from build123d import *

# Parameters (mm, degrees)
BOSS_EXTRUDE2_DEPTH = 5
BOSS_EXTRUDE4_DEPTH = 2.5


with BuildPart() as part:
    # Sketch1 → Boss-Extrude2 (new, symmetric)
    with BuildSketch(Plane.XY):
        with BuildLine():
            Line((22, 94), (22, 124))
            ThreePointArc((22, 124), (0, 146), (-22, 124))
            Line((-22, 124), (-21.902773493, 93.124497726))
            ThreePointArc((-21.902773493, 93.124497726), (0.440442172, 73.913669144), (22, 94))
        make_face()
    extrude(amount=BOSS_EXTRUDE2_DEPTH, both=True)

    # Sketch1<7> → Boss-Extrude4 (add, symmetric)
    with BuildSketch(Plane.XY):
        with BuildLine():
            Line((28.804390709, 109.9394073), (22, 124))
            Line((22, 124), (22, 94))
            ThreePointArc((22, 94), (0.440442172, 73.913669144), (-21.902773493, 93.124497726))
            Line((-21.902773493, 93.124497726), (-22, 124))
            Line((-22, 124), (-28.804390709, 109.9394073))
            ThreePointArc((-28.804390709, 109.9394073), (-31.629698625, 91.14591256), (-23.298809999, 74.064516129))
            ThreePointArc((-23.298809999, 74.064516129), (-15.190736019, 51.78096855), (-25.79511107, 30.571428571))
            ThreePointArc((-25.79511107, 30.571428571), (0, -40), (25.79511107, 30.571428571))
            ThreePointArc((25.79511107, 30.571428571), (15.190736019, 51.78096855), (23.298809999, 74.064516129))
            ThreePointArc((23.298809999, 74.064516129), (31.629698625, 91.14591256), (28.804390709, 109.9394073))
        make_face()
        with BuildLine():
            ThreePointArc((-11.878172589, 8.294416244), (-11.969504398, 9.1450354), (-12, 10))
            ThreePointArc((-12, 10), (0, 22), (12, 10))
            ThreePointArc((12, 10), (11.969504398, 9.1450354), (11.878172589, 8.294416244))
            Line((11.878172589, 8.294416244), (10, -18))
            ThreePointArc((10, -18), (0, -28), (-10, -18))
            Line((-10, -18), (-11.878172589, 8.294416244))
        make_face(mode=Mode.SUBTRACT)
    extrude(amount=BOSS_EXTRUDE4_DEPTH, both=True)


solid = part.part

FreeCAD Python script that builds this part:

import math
import FreeCAD as App
import Part
import Sketcher

V = App.Vector
Q = App.Units.Quantity

doc = App.newDocument("Part")
params = doc.addObject("Spreadsheet::Sheet", "Params")
for row, (alias, value) in enumerate([
    ("sketch1_radius", "22 mm"),
    ("sketch1_height", "30 mm"),
    ("pad1_length", "10 mm"),
    ("sketch2_radius", "32 mm"),
    ("sketch2_radius2", "30 mm"),
    ("sketch2_radius3", "40 mm"),
    ("sketch2_radius4", "12 mm"),
    ("sketch2_radius5", "10 mm"),
    ("pad2_length", "5 mm"),
], start=1):
    params.set(f"A{row}", alias)
    params.set(f"B{row}", "=" + value)
    params.setAlias(f"B{row}", alias)

body = doc.addObject("PartDesign::Body", "Body")

# Sketch on XY plane
sketch1 = body.newObject("Sketcher::SketchObject", "Sketch")
sketch1.AttachmentSupport = (doc.getObject("XY_Plane"), [""])
sketch1.MapMode = "FlatFace"
sketch1.addGeometry([
    Part.LineSegment(V(22, 94, 0), V(22, 124, 0)),
    Part.ArcOfCircle(Part.Circle(V(0, 124, 0), V(0, 0, 1), 22), math.radians(0), math.radians(180)),
    Part.LineSegment(V(-22, 124, 0), V(-22, 93, 0)),
    Part.ArcOfCircle(Part.Circle(V(0, 96, 0), V(0, 0, 1), 22), math.radians(-173), math.radians(-5)),
], False)
sketch1.addConstraint([
    Sketcher.Constraint("Tangent", 0, 2, 1, 1),
    Sketcher.Constraint("Coincident", 1, 2, 2, 1),
    Sketcher.Constraint("Coincident", 2, 2, 3, 1),
    Sketcher.Constraint("Coincident", 3, 2, 0, 1),
    Sketcher.Constraint("Vertical", 0),
    Sketcher.Constraint("Symmetric", 0, 2, 1, 2, -2),
    Sketcher.Constraint("PointOnObject", 3, 3, -2),
    Sketcher.Constraint("Radius", 1, Q("22 mm")),
    Sketcher.Constraint("DistanceY", 0, 1, 0, 2, Q("30 mm")),
    Sketcher.Constraint("DistanceY", -1, 1, 1, 3, Q("124 mm")),
    Sketcher.Constraint("DistanceY", -1, 1, 3, 3, Q("96 mm")),
    Sketcher.Constraint("Distance", 2, Q("30.875655 mm")),
])
sketch1.setExpression("Constraints[7]", "Params.sketch1_radius")
sketch1.setExpression("Constraints[8]", "Params.sketch1_height")
pad1 = body.newObject("PartDesign::Pad", "Pad")
pad1.Profile = sketch1
pad1.setExpression("Length", "Params.pad1_length")
pad1.Midplane = True

# Sketch on XY plane
sketch2 = body.newObject("Sketcher::SketchObject", "Sketch001")
sketch2.AttachmentSupport = (doc.getObject("XY_Plane"), [""])
sketch2.MapMode = "FlatFace"
sketch2.addGeometry([
    Part.LineSegment(V(28.8, 109.9, 0), V(22, 124, 0)),  # 0
    Part.LineSegment(V(22, 124, 0), V(22, 94, 0)),  # 1
    Part.ArcOfCircle(Part.Circle(V(0, 96, 0), V(0, 0, 1), 22.1), math.radians(-173), math.radians(-5)),  # 2
    Part.LineSegment(V(-21.9, 93.1, 0), V(-22, 124, 0)),  # 3
    Part.LineSegment(V(-22, 124, 0), V(-28.8, 109.9, 0)),  # 4
    Part.ArcOfCircle(Part.Circle(V(0, 96, 0), V(0, 0, 1), 32), math.radians(154), math.radians(223)),  # 5
    Part.ArcOfCircle(Part.Circle(V(-45.1, 53.5, 0), V(0, 0, 1), 30), math.radians(-50), math.radians(43)),  # 6
    Part.ArcOfCircle(Part.Circle(V(0, 0, 0), V(0, 0, 1), 40), math.radians(130), math.radians(410)),  # 7
    Part.ArcOfCircle(Part.Circle(V(45.1, 53.5, 0), V(0, 0, 1), 30), math.radians(137), math.radians(230)),  # 8
    Part.ArcOfCircle(Part.Circle(V(0, 96, 0), V(0, 0, 1), 32), math.radians(-43), math.radians(26)),  # 9
    Part.LineSegment(V(-10, -18, 0), V(-11.9, 8.3, 0)),  # 10
    Part.ArcOfCircle(Part.Circle(V(0, 10, 0), V(0, 0, 1), 12), math.radians(180), math.radians(188.17)),  # 11
    Part.ArcOfCircle(Part.Circle(V(0, 10, 0), V(0, 0, 1), 12), math.radians(0), math.radians(180)),  # 12
    Part.ArcOfCircle(Part.Circle(V(0, 10, 0), V(0, 0, 1), 12), math.radians(-8.17), math.radians(0)),  # 13
    Part.LineSegment(V(11.9, 8.3, 0), V(10, -18, 0)),  # 14
    Part.ArcOfCircle(Part.Circle(V(0, -18, 0), V(0, 0, 1), 10), math.radians(180), math.radians(360)),  # 15
], False)
sketch2.addConstraint([
    Sketcher.Constraint("Coincident", 0, 2, 1, 1),
    Sketcher.Constraint("Coincident", 1, 2, 2, 2),
    Sketcher.Constraint("Coincident", 2, 1, 3, 1),
    Sketcher.Constraint("Coincident", 3, 2, 4, 1),
    Sketcher.Constraint("Tangent", 4, 2, 5, 1),
    Sketcher.Constraint("Tangent", 5, 2, 6, 2),
    Sketcher.Constraint("Tangent", 6, 1, 7, 1),
    Sketcher.Constraint("Tangent", 7, 2, 8, 2),
    Sketcher.Constraint("Tangent", 8, 1, 9, 1),
    Sketcher.Constraint("Tangent", 9, 2, 0, 1),
    Sketcher.Constraint("Coincident", 10, 2, 11, 2),
    Sketcher.Constraint("Tangent", 11, 1, 12, 2),
    Sketcher.Constraint("Tangent", 12, 1, 13, 2),
    Sketcher.Constraint("Coincident", 13, 1, 14, 1),
    Sketcher.Constraint("Coincident", 14, 2, 15, 2),
    Sketcher.Constraint("Coincident", 15, 1, 10, 1),
    Sketcher.Constraint("Vertical", 1),
    Sketcher.Constraint("Coincident", 7, 3, -1, 1),
    Sketcher.Constraint("Coincident", 5, 3, 2, 3),
    Sketcher.Constraint("Coincident", 9, 3, 2, 3),
    Sketcher.Constraint("Equal", 6, 8),
    Sketcher.Constraint("Equal", 5, 9),
    Sketcher.Constraint("Equal", 11, 12),
    Sketcher.Constraint("Equal", 12, 13),
    Sketcher.Constraint("Symmetric", 0, 2, 3, 2, -2),
    Sketcher.Constraint("Symmetric", 11, 1, 12, 1, -2),
    Sketcher.Constraint("Symmetric", 14, 2, 15, 1, -2),
    Sketcher.Constraint("PointOnObject", 2, 3, -2),
    Sketcher.Constraint("Horizontal", 13, 3, 11, 1),
    Sketcher.Constraint("Horizontal", 10, 2, 13, 1),
    Sketcher.Constraint("Horizontal", 15, 3, 14, 2),
    Sketcher.Constraint("Radius", 5, Q("32 mm")),
    Sketcher.Constraint("Radius", 6, Q("30 mm")),
    Sketcher.Constraint("Radius", 7, Q("40 mm")),
    Sketcher.Constraint("Radius", 11, Q("12 mm")),
    Sketcher.Constraint("Radius", 15, Q("10 mm")),
    Sketcher.Constraint("DistanceY", 1, 2, 1, 1, Q("30 mm")),
    Sketcher.Constraint("DistanceY", -1, 1, 2, 3, Q("96 mm")),
    Sketcher.Constraint("DistanceY", -1, 1, 11, 3, Q("10 mm")),
    Sketcher.Constraint("DistanceY", 15, 3, -1, 1, Q("18 mm")),
    Sketcher.Constraint("DistanceX", -1, 1, 0, 2, Q("22 mm")),
    Sketcher.Constraint("DistanceY", -1, 1, 0, 2, Q("124 mm")),
    Sketcher.Constraint("Distance", 10, Q("26.361408 mm")),
    Sketcher.Constraint("DistanceX", 6, 3, 2, 1, Q("23.238671 mm")),
])
sketch2.setExpression("Constraints[31]", "Params.sketch2_radius")
sketch2.setExpression("Constraints[32]", "Params.sketch2_radius2")
sketch2.setExpression("Constraints[33]", "Params.sketch2_radius3")
sketch2.setExpression("Constraints[34]", "Params.sketch2_radius4")
sketch2.setExpression("Constraints[35]", "Params.sketch2_radius5")
pad2 = body.newObject("PartDesign::Pad", "Pad001")
pad2.Profile = sketch2
pad2.setExpression("Length", "Params.pad2_length")
pad2.Midplane = True

doc.recompute()
